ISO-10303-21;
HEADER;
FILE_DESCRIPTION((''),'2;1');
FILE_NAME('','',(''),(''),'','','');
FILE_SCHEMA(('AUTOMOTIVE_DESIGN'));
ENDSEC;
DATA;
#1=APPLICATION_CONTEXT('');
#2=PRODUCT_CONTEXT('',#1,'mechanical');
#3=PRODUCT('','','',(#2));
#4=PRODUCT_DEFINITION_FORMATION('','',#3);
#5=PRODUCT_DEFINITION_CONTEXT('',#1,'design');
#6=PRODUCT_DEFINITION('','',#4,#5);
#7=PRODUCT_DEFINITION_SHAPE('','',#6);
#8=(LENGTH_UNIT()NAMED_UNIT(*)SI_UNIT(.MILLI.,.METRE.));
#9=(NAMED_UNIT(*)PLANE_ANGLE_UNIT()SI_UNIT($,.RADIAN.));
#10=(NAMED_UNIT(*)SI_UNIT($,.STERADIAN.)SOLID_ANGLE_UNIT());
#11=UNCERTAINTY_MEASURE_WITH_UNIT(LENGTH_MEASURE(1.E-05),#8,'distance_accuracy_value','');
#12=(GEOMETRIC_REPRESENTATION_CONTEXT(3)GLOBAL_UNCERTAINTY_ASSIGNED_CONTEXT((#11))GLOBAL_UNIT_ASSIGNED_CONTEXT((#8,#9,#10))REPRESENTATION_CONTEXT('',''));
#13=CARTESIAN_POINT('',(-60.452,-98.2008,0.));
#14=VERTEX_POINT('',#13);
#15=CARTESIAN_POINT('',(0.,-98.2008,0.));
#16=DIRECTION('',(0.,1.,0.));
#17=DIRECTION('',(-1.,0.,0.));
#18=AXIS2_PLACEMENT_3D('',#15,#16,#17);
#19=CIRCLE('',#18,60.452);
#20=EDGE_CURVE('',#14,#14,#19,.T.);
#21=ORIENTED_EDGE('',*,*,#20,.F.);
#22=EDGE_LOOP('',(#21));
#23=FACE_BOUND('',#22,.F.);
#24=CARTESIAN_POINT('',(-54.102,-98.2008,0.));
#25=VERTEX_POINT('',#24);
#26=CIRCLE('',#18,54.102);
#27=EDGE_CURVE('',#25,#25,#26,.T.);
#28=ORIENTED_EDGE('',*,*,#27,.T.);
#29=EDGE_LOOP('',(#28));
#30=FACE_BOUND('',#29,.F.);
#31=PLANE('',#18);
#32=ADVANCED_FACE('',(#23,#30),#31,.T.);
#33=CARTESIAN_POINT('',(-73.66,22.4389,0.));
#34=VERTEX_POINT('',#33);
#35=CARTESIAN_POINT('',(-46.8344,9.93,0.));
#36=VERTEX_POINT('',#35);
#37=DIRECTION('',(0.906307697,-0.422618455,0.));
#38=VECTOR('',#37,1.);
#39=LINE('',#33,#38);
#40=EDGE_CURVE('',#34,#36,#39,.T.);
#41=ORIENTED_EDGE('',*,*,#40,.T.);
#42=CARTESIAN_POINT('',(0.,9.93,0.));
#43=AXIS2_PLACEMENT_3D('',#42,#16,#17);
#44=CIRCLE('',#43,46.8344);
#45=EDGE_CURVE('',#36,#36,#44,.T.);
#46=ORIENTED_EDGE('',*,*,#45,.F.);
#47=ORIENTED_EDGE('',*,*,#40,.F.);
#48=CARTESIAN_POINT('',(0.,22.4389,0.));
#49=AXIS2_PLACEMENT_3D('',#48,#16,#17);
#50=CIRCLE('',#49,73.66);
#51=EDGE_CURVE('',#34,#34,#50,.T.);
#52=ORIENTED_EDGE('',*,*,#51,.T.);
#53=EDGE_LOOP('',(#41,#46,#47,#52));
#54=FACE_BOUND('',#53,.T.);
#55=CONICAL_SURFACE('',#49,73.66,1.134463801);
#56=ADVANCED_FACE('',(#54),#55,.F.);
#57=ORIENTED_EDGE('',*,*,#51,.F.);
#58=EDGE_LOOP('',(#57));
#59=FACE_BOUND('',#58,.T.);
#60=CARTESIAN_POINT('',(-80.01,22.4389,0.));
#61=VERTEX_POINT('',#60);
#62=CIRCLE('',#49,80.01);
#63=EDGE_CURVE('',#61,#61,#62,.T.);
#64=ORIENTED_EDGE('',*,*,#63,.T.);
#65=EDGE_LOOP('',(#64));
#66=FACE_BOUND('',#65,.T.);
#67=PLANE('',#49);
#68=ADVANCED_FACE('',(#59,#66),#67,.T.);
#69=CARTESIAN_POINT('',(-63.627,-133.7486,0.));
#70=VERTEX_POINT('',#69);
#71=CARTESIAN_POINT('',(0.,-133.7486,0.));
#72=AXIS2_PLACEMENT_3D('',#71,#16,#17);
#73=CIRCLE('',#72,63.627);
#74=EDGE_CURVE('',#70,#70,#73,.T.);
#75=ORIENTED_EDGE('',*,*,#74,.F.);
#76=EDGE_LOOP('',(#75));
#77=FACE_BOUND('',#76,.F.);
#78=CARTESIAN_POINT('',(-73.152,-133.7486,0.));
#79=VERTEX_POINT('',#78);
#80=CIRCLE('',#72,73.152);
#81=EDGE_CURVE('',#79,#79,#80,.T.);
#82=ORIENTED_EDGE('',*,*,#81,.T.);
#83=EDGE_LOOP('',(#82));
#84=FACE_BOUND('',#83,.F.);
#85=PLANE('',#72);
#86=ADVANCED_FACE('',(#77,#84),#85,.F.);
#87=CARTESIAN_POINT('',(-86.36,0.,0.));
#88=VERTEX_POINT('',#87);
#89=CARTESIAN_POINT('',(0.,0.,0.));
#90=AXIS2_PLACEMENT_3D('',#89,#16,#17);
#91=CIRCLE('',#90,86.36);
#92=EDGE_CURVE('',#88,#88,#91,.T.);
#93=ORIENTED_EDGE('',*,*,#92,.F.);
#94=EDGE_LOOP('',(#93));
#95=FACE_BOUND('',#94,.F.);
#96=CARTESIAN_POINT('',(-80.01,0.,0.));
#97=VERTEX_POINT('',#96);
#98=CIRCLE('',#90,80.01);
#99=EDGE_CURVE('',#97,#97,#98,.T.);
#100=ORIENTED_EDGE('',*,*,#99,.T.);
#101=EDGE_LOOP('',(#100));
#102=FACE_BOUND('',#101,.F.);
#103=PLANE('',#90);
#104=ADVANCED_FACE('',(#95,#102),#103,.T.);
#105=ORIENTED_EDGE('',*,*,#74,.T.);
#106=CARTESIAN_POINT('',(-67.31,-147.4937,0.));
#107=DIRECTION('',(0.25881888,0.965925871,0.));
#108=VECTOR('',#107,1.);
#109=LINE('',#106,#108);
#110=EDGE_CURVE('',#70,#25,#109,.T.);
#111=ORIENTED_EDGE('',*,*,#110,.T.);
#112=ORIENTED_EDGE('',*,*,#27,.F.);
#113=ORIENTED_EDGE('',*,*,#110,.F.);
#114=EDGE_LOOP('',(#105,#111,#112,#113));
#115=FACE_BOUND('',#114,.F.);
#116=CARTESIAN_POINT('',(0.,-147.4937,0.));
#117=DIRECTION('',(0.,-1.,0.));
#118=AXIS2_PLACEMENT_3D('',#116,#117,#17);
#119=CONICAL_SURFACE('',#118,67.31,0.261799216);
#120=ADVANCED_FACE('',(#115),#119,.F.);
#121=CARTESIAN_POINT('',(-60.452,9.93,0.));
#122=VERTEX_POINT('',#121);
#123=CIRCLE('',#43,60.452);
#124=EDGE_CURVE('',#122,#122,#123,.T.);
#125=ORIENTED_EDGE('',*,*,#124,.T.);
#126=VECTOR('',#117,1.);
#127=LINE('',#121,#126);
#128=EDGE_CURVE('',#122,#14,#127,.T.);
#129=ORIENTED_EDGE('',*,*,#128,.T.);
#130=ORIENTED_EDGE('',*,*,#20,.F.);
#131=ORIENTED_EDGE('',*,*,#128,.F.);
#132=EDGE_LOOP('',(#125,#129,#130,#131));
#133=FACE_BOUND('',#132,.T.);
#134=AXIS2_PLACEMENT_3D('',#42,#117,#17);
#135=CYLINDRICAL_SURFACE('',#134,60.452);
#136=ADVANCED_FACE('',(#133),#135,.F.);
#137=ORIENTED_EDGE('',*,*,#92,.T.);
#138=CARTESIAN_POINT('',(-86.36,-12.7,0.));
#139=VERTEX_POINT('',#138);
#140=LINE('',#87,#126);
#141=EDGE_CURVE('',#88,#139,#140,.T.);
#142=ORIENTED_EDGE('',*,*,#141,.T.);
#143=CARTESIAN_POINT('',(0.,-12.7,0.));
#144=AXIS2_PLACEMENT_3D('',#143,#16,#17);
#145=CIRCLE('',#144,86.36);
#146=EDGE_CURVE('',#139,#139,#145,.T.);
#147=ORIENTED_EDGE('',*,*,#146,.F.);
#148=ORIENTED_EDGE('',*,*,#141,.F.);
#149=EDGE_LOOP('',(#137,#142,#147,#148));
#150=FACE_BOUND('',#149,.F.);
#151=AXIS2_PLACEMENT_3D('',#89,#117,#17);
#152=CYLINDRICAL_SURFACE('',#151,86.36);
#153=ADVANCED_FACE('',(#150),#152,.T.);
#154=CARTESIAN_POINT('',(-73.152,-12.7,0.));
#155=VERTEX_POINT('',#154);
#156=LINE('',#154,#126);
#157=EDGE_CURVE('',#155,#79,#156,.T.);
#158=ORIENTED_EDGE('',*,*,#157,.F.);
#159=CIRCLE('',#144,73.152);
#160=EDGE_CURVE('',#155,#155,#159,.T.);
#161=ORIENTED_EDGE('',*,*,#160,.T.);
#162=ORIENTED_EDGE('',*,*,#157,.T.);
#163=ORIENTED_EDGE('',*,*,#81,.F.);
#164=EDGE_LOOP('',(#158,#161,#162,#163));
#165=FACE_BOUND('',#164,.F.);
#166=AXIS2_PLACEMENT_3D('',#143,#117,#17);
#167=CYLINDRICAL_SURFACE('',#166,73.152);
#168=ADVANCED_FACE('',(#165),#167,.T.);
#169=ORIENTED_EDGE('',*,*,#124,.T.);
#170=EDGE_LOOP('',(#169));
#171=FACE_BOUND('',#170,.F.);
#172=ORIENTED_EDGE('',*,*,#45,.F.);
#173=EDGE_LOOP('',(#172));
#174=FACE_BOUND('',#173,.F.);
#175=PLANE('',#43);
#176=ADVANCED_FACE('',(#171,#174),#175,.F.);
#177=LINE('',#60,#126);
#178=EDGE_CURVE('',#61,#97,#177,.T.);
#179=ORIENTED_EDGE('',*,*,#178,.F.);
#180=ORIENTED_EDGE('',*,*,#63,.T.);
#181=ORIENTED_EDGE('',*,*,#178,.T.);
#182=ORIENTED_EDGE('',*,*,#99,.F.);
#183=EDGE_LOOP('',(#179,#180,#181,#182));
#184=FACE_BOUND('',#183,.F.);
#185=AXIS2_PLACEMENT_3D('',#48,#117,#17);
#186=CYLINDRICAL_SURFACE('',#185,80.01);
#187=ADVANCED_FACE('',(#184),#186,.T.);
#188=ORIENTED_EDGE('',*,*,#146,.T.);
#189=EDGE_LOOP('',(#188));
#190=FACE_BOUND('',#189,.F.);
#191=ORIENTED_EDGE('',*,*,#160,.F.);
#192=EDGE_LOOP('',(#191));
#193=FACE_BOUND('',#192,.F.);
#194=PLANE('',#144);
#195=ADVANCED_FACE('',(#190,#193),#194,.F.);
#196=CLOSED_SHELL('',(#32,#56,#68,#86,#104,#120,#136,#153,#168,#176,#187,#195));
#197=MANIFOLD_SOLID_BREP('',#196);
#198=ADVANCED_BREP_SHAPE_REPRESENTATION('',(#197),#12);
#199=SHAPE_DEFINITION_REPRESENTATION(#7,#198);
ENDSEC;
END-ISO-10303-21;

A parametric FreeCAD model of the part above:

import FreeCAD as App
import Part
import Sketcher
Q = App.Units.Quantity

doc = App.newDocument("Part")
body = doc.addObject("PartDesign::Body", "Body")

# Sketch on XY plane
sketch1 = body.newObject("Sketcher::SketchObject", "Sketch")
sketch1.AttachmentSupport = (doc.getObject("XY_Plane"), [""])
sketch1.MapMode = "FlatFace"
sketch1.addGeometry([
    Part.LineSegment(App.Vector(-80.01, 22.4389, 0), App.Vector(-80.01, 0, 0)),  # 0
    Part.LineSegment(App.Vector(-80.01, 0, 0), App.Vector(-86.36, 0, 0)),  # 1
    Part.LineSegment(App.Vector(-86.36, 0, 0), App.Vector(-86.36, -12.7, 0)),  # 2
    Part.LineSegment(App.Vector(-86.36, -12.7, 0), App.Vector(-73.152, -12.7, 0)),  # 3
    Part.LineSegment(App.Vector(-73.152, -12.7, 0), App.Vector(-73.152, -133.7486, 0)),  # 4
    Part.LineSegment(App.Vector(-73.152, -133.7486, 0), App.Vector(-63.627, -133.7486, 0)),  # 5
    Part.LineSegment(App.Vector(-63.627013, -133.748596, 0), App.Vector(-54.102015, -98.200796, 0)),  # 6
    Part.LineSegment(App.Vector(-54.102, -98.2008, 0), App.Vector(-60.452, -98.2008, 0)),  # 7
    Part.LineSegment(App.Vector(-60.452, -98.2008, 0), App.Vector(-60.452, 9.93, 0)),  # 8
    Part.LineSegment(App.Vector(-60.452, 9.93, 0), App.Vector(-46.8344, 9.93, 0)),  # 9
    Part.LineSegment(App.Vector(-46.834434, 9.929926, 0), App.Vector(-73.66, 22.4389, 0)),  # 10
    Part.LineSegment(App.Vector(-73.66, 22.4389, 0), App.Vector(-80.01, 22.4389, 0)),  # 11
], False)
sketch1.addConstraint([
    Sketcher.Constraint("Coincident", 0, 2, 1, 1),
    Sketcher.Constraint("Coincident", 1, 2, 2, 1),
    Sketcher.Constraint("Coincident", 2, 2, 3, 1),
    Sketcher.Constraint("Coincident", 3, 2, 4, 1),
    Sketcher.Constraint("Coincident", 4, 2, 5, 1),
    Sketcher.Constraint("Coincident", 5, 2, 6, 1),
    Sketcher.Constraint("Coincident", 6, 2, 7, 1),
    Sketcher.Constraint("Coincident", 7, 2, 8, 1),
    Sketcher.Constraint("Coincident", 8, 2, 9, 1),
    Sketcher.Constraint("Coincident", 9, 2, 10, 1),
    Sketcher.Constraint("Coincident", 10, 2, 11, 1),
    Sketcher.Constraint("Coincident", 11, 2, 0, 1),
    Sketcher.Constraint("Vertical", 0),
    Sketcher.Constraint("Horizontal", 1),
    Sketcher.Constraint("Vertical", 2),
    Sketcher.Constraint("Horizontal", 3),
    Sketcher.Constraint("Vertical", 4),
    Sketcher.Constraint("Horizontal", 5),
    Sketcher.Constraint("Horizontal", 7),
    Sketcher.Constraint("Vertical", 8),
    Sketcher.Constraint("Horizontal", 9),
    Sketcher.Constraint("Horizontal", 11),
    Sketcher.Constraint("PointOnObject", 0, 2, -1),
    Sketcher.Constraint("Equal", 1, 7),
    Sketcher.Constraint("Equal", 7, 11),
    Sketcher.Constraint("DistanceY", 2, 2, 2, 1, Q("0.5 in")),
    Sketcher.Constraint("DistanceX", 1, 2, 1, 1, Q("0.25 in")),
    Sketcher.Constraint("DistanceX", 1, 2, -1, 1, Q("3.4 in")),
    Sketcher.Constraint("DistanceX", 4, 2, 7, 2, Q("0.5 in")),
    Sketcher.Constraint("DistanceX", 5, 1, 5, 2, Q("0.375 in")),
    Sketcher.Constraint("Angle", 6, Q("75 deg")),
    Sketcher.Constraint("Angle", 10, Q("155 deg")),
    Sketcher.Constraint("DistanceX", 3, 1, 3, 2, Q("0.52 in")),
    Sketcher.Constraint("DistanceY", 4, 2, 4, 1, Q("4.7657 in")),
    Sketcher.Constraint("Distance", 10, Q("1.1653 in")),
    Sketcher.Constraint("DistanceY", 0, 2, 0, 1, Q("22.439 mm")),
])
revolution = body.newObject("PartDesign::Revolution", "Revolution")
revolution.Profile = sketch1
revolution.ReferenceAxis = (sketch1, ["V_Axis"])
revolution.Angle = 360

doc.recompute()
